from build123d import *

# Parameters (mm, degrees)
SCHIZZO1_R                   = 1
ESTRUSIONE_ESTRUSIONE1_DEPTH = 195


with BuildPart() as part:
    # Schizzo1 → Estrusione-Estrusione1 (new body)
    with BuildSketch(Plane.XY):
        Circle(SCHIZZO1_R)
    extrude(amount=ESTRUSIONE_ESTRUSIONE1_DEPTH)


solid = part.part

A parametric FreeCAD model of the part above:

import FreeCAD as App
import Part
import Sketcher
Q = App.Units.Quantity

doc = App.newDocument("Part")
params = doc.addObject("Spreadsheet::Sheet", "Params")
for row, (alias, value) in enumerate([
    ("sketch1_diameter", "2 mm"),
    ("pad1_length", "195 mm"),
], start=1):
    params.set(f"A{row}", alias)
    params.set(f"B{row}", "=" + value)
    params.setAlias(f"B{row}", alias)

body = doc.addObject("PartDesign::Body", "Body")

# Sketch on XY plane
sketch1 = body.newObject("Sketcher::SketchObject", "Sketch")
sketch1.AttachmentSupport = (doc.getObject("XY_Plane"), [""])
sketch1.MapMode = "FlatFace"
sketch1.addGeometry(Part.Circle(App.Vector(0, 0, 0), App.Vector(0, 0, 1), 1), False)
sketch1.addConstraint([
    Sketcher.Constraint("Coincident", 0, 3, -1, 1),
    Sketcher.Constraint("Diameter", 0, Q("2 mm")),
])
sketch1.setExpression("Constraints[1]", "Params.sketch1_diameter")
pad1 = body.newObject("PartDesign::Pad", "Pad")
pad1.Profile = sketch1
pad1.setExpression("Length", "Params.pad1_length")

doc.recompute()
